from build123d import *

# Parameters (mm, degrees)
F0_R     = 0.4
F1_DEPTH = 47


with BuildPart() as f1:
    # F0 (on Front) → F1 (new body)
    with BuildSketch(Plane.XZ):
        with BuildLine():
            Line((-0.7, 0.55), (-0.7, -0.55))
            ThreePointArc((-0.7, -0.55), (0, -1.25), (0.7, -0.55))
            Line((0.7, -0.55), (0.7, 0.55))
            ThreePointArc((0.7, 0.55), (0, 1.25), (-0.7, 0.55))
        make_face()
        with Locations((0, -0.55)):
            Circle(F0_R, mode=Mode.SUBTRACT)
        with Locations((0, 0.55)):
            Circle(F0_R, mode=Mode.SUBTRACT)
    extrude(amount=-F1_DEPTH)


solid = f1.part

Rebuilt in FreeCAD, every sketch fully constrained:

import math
import FreeCAD as App
import Part
import Sketcher
from FreeCAD import Vector

doc = App.newDocument("Part")
body = doc.addObject("PartDesign::Body", "Body")

# Sketch on XZ plane
sketch1 = body.newObject("Sketcher::SketchObject", "Sketch")
sketch1.AttachmentSupport = (doc.getObject("XZ_Plane"), [""])
sketch1.MapMode = "FlatFace"
sketch1.addGeometry([
    Part.LineSegment(Vector(-0.7, 0.55, 0), Vector(-0.7, -0.55, 0)),  # 0
    Part.ArcOfCircle(Part.Circle(Vector(0, -0.55, 0), Vector(0, 0, 1), 0.7), math.radians(180), math.radians(360)),  # 1
    Part.LineSegment(Vector(0.7, -0.55, 0), Vector(0.7, 0.55, 0)),  # 2
    Part.ArcOfCircle(Part.Circle(Vector(0, 0.55, 0), Vector(0, 0, 1), 0.7), math.radians(0), math.radians(180)),  # 3
    Part.Circle(Vector(0, -0.55, 0), Vector(0, 0, 1), 0.4),  # 4
    Part.Circle(Vector(0, 0.55, 0), Vector(0, 0, 1), 0.4),  # 5
], False)
sketch1.addConstraint([
    Sketcher.Constraint("Tangent", 0, 2, 1, 1),
    Sketcher.Constraint("Tangent", 1, 2, 2, 1),
    Sketcher.Constraint("Tangent", 2, 2, 3, 1),
    Sketcher.Constraint("Tangent", 3, 2, 0, 1),
    Sketcher.Constraint("Vertical", 0),
    Sketcher.Constraint("Vertical", 2),
    Sketcher.Constraint("Coincident", 4, 3, 1, 3),
    Sketcher.Constraint("Coincident", 5, 3, 3, 3),
    Sketcher.Constraint("Equal", 4, 5),
    Sketcher.Constraint("Symmetric", 1, 3, 3, 3, -1, 1),
    Sketcher.Constraint("Diameter", 4, 0.8),
    Sketcher.Constraint("Radius", 1, 0.7),
    Sketcher.Constraint("DistanceY", 0, 2, 0, 1, 1.1),
])
pad1 = body.newObject("PartDesign::Pad", "Pad")
pad1.Profile = sketch1
pad1.Length = 47
pad1.Reversed = True

doc.recompute()
